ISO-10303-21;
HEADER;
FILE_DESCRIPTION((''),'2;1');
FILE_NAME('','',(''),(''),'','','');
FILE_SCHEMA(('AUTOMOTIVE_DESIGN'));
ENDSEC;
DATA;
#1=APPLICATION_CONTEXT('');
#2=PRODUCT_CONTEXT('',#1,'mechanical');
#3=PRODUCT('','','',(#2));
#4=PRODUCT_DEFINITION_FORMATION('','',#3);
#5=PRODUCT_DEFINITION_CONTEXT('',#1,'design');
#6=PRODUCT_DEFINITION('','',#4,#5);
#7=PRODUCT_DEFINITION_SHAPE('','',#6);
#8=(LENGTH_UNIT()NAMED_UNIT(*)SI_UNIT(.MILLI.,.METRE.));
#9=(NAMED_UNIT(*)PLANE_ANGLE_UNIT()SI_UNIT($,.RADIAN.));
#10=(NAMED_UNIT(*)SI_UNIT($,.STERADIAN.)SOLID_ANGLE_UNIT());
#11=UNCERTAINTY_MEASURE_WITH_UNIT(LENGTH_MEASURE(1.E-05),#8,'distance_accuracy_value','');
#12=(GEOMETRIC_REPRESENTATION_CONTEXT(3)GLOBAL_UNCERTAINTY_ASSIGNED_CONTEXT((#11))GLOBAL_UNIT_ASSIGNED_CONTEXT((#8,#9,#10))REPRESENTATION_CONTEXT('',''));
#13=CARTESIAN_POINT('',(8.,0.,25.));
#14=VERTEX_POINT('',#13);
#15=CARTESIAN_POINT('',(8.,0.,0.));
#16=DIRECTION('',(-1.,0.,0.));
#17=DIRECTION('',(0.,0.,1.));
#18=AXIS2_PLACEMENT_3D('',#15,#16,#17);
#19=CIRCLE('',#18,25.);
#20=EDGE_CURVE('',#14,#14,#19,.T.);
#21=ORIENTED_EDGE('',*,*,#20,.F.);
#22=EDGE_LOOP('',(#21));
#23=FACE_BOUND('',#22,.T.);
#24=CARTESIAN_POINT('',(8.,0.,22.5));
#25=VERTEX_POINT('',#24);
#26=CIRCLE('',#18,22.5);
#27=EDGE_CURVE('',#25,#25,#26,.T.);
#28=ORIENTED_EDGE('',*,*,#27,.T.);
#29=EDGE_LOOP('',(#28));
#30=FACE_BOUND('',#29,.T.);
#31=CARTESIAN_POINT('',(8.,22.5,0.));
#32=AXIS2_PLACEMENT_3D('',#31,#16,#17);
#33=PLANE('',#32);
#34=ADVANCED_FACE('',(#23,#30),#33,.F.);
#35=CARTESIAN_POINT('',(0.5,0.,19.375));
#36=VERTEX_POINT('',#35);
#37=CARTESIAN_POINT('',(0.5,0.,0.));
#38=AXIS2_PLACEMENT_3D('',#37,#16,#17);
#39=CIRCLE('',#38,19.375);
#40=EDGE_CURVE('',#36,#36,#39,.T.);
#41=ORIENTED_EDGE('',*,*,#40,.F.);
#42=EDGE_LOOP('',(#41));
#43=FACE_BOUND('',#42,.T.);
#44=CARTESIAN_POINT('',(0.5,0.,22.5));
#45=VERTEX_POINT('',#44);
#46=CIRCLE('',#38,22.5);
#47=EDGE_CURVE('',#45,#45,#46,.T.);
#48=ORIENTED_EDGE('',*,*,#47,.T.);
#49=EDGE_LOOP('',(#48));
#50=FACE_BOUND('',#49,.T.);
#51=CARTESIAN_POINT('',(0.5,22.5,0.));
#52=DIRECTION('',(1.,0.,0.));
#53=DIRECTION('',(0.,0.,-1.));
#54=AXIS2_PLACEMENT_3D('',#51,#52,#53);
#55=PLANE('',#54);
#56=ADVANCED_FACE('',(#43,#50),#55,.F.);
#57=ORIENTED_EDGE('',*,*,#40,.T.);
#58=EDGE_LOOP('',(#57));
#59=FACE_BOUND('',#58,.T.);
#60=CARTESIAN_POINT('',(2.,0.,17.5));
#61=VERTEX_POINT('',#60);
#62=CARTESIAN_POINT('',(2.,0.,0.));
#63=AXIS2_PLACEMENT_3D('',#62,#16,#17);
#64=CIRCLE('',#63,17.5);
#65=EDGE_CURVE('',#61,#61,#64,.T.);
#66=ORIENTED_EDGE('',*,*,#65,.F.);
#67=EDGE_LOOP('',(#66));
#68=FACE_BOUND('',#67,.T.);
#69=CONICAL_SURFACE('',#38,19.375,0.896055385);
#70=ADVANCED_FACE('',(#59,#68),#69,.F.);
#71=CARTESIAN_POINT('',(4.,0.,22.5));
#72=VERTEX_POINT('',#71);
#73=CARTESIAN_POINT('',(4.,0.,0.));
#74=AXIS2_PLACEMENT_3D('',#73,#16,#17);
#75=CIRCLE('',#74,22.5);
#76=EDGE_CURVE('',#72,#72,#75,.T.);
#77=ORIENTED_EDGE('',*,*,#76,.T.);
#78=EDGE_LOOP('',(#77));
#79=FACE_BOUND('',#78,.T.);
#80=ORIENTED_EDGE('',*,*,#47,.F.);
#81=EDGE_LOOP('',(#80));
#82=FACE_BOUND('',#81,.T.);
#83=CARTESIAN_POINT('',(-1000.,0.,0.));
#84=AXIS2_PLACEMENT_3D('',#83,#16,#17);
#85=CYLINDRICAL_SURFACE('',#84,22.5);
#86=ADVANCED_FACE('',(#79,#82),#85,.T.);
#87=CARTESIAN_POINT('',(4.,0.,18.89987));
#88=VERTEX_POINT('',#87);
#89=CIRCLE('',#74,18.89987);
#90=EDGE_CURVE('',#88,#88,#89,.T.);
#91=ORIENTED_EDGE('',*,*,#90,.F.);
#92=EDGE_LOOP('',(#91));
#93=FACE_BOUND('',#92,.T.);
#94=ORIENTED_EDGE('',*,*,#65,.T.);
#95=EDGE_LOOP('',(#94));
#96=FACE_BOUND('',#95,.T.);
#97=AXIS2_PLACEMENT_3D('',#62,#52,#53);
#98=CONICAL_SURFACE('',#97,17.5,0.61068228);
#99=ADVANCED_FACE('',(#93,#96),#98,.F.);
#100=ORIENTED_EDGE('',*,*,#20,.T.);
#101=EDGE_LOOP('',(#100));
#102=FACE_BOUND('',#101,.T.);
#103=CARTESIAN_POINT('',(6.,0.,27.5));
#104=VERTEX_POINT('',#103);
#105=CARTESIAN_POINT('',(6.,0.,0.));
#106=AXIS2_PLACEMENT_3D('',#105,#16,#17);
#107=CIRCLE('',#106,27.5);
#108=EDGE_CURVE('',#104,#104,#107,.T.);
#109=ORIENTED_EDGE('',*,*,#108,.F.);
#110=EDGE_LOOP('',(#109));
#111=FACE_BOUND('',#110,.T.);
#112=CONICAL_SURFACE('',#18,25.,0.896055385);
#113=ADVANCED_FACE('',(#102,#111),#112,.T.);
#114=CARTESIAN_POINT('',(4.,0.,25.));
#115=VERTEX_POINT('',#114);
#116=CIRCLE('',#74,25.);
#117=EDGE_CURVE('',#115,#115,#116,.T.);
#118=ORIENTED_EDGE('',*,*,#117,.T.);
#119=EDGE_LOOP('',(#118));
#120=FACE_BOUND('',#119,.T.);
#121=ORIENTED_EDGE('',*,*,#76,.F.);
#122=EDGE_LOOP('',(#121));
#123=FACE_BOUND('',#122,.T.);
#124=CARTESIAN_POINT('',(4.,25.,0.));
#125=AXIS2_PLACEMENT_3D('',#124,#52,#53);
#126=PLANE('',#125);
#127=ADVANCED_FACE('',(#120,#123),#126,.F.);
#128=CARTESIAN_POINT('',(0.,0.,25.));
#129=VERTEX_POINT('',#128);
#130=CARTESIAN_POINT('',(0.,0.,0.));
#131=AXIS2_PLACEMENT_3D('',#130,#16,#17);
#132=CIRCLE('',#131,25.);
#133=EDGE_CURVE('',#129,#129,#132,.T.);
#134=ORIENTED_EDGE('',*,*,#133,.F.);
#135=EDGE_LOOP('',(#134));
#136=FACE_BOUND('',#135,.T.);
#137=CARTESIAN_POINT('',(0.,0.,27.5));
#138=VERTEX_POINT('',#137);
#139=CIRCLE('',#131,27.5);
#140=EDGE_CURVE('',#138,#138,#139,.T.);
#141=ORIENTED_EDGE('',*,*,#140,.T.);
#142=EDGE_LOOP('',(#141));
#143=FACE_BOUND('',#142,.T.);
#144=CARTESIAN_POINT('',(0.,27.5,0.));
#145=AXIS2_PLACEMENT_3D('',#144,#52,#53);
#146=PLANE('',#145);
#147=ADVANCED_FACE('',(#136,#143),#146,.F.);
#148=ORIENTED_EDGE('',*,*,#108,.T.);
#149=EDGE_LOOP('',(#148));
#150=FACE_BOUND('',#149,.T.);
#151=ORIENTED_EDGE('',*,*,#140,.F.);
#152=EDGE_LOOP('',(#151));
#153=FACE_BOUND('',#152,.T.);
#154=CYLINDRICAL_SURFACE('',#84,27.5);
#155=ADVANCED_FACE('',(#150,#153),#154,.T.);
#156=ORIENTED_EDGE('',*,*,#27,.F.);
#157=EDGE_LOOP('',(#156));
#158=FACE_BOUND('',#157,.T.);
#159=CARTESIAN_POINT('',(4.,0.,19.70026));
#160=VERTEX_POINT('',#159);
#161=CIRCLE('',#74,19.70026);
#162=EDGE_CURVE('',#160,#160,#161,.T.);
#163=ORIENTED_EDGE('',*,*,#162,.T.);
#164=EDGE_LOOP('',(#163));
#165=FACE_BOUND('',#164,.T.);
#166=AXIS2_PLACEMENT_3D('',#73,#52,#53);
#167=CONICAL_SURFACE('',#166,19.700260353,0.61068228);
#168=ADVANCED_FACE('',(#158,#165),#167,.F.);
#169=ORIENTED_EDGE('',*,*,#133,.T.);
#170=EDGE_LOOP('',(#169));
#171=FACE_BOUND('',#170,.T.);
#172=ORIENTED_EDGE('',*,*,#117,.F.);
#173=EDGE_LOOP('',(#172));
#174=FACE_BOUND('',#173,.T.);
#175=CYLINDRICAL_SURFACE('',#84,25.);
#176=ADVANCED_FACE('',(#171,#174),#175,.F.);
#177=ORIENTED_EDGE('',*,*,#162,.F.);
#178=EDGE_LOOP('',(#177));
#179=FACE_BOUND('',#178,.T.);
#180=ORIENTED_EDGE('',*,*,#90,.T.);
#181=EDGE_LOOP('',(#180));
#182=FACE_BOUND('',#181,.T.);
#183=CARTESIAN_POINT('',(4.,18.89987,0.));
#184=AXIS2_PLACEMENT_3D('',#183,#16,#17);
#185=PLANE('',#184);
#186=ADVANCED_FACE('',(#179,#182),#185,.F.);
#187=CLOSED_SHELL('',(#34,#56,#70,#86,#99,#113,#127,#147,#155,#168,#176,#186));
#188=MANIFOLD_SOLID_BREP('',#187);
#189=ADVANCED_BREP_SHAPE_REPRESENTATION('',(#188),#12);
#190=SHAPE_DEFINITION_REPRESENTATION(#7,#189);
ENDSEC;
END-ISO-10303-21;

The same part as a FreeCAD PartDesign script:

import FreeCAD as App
import Part
import Sketcher
Q = App.Units.Quantity

doc = App.newDocument("Part")
params = doc.addObject("Spreadsheet::Sheet", "Params")
for row, (alias, value) in enumerate([
    ("sketch1_width", "6 mm"),
    ("sketch1_width2", "4 mm"),
    ("sketch1_width3", "3.5 mm"),
    ("sketch1_height", "2.5 mm"),
    ("revolution_angle", "360 deg"),
], start=1):
    params.set(f"A{row}", alias)
    params.set(f"B{row}", "=" + value)
    params.setAlias(f"B{row}", alias)

body = doc.addObject("PartDesign::Body", "Body")

sketch1 = doc.addObject("Sketcher::SketchObject", "Sketch")
body.addObject(sketch1)
sketch1.AttachmentSupport = (doc.XY_Plane, [""])
sketch1.MapMode = "FlatFace"
sketch1.addGeometry(Part.LineSegment(App.Vector(8, 25, 0), App.Vector(6, 27.5, 0)), False)
sketch1.addGeometry(Part.LineSegment(App.Vector(6, 27.5, 0), App.Vector(0, 27.5, 0)), False)
sketch1.addGeometry(Part.LineSegment(App.Vector(0, 27.5, 0), App.Vector(0, 25, 0)), False)
sketch1.addGeometry(Part.LineSegment(App.Vector(0, 25, 0), App.Vector(4, 25, 0)), False)
sketch1.addGeometry(Part.LineSegment(App.Vector(4, 25, 0), App.Vector(4, 22.5, 0)), False)
sketch1.addGeometry(Part.LineSegment(App.Vector(4, 22.5, 0), App.Vector(0.5, 22.5, 0)), False)
sketch1.addGeometry(Part.LineSegment(App.Vector(0.5, 22.5, 0), App.Vector(0.5, 19.4, 0)), False)
sketch1.addGeometry(Part.LineSegment(App.Vector(0.5, 19.4, 0), App.Vector(2, 17.5, 0)), False)
sketch1.addGeometry(Part.LineSegment(App.Vector(2, 17.5, 0), App.Vector(4, 18.9, 0)), False)
sketch1.addGeometry(Part.LineSegment(App.Vector(4, 18.9, 0), App.Vector(4, 19.7, 0)), False)
sketch1.addGeometry(Part.LineSegment(App.Vector(4, 19.7, 0), App.Vector(8, 22.5, 0)), False)
sketch1.addGeometry(Part.LineSegment(App.Vector(8, 22.5, 0), App.Vector(8, 25, 0)), False)
sketch1.addConstraint(Sketcher.Constraint("Coincident", 0, 2, 1, 1))
sketch1.addConstraint(Sketcher.Constraint("Coincident", 1, 2, 2, 1))
sketch1.addConstraint(Sketcher.Constraint("Coincident", 2, 2, 3, 1))
sketch1.addConstraint(Sketcher.Constraint("Coincident", 3, 2, 4, 1))
sketch1.addConstraint(Sketcher.Constraint("Coincident", 4, 2, 5, 1))
sketch1.addConstraint(Sketcher.Constraint("Coincident", 5, 2, 6, 1))
sketch1.addConstraint(Sketcher.Constraint("Coincident", 6, 2, 7, 1))
sketch1.addConstraint(Sketcher.Constraint("Coincident", 7, 2, 8, 1))
sketch1.addConstraint(Sketcher.Constraint("Coincident", 8, 2, 9, 1))
sketch1.addConstraint(Sketcher.Constraint("Coincident", 9, 2, 10, 1))
sketch1.addConstraint(Sketcher.Constraint("Coincident", 10, 2, 11, 1))
sketch1.addConstraint(Sketcher.Constraint("Coincident", 11, 2, 0, 1))
sketch1.addConstraint(Sketcher.Constraint("Horizontal", 1))
sketch1.addConstraint(Sketcher.Constraint("Vertical", 2))
sketch1.addConstraint(Sketcher.Constraint("Horizontal", 3))
sketch1.addConstraint(Sketcher.Constraint("Vertical", 4))
sketch1.addConstraint(Sketcher.Constraint("Horizontal", 5))
sketch1.addConstraint(Sketcher.Constraint("Vertical", 6))
sketch1.addConstraint(Sketcher.Constraint("Vertical", 9))
sketch1.addConstraint(Sketcher.Constraint("Vertical", 11))
sketch1.addConstraint(Sketcher.Constraint("PointOnObject", 1, 2, -2))
sketch1.addConstraint(Sketcher.Constraint("Parallel", 0, 7))
sketch1.addConstraint(Sketcher.Constraint("Parallel", 8, 10))
sketch1.addConstraint(Sketcher.Constraint("Horizontal", 5, 2, 10, 2))
sketch1.addConstraint(Sketcher.Constraint("Horizontal", 3, 2, 11, 2))
sketch1.addConstraint(Sketcher.Constraint("Vertical", 4, 2, 8, 2))
sketch1.addConstraint(Sketcher.Constraint("Equal", 2, 4))
sketch1.addConstraint(Sketcher.Constraint("DistanceX", 1, 2, 1, 1, Q("6 mm")))
sketch1.addConstraint(Sketcher.Constraint("DistanceX", 3, 1, 3, 2, Q("4 mm")))
sketch1.addConstraint(Sketcher.Constraint("DistanceX", 5, 2, 5, 1, Q("3.5 mm")))
sketch1.addConstraint(Sketcher.Constraint("DistanceY", 2, 2, 2, 1, Q("2.5 mm")))
sketch1.addConstraint(Sketcher.Constraint("DistanceY", -1, 1, 2, 2, Q("25 mm")))
sketch1.addConstraint(Sketcher.Constraint("DistanceX", -1, 1, 7, 2, Q("2 mm")))
sketch1.addConstraint(Sketcher.Constraint("DistanceX", -1, 1, 10, 2, Q("8 mm")))
sketch1.addConstraint(Sketcher.Constraint("DistanceY", 7, 2, 5, 2, Q("5 mm")))
sketch1.addConstraint(Sketcher.Constraint("DistanceY", 9, 1, 9, 2, Q("0.800391 mm")))
sketch1.setExpression("Constraints[27]", "Params.sketch1_width")
sketch1.setExpression("Constraints[28]", "Params.sketch1_width2")
sketch1.setExpression("Constraints[29]", "Params.sketch1_width3")
sketch1.setExpression("Constraints[30]", "Params.sketch1_height")
revolution = doc.addObject("PartDesign::Revolution", "Revolution")
body.addObject(revolution)
revolution.Profile = sketch1
revolution.ReferenceAxis = (sketch1, ["H_Axis"])
revolution.setExpression("Angle", "Params.revolution_angle")

doc.recompute()
